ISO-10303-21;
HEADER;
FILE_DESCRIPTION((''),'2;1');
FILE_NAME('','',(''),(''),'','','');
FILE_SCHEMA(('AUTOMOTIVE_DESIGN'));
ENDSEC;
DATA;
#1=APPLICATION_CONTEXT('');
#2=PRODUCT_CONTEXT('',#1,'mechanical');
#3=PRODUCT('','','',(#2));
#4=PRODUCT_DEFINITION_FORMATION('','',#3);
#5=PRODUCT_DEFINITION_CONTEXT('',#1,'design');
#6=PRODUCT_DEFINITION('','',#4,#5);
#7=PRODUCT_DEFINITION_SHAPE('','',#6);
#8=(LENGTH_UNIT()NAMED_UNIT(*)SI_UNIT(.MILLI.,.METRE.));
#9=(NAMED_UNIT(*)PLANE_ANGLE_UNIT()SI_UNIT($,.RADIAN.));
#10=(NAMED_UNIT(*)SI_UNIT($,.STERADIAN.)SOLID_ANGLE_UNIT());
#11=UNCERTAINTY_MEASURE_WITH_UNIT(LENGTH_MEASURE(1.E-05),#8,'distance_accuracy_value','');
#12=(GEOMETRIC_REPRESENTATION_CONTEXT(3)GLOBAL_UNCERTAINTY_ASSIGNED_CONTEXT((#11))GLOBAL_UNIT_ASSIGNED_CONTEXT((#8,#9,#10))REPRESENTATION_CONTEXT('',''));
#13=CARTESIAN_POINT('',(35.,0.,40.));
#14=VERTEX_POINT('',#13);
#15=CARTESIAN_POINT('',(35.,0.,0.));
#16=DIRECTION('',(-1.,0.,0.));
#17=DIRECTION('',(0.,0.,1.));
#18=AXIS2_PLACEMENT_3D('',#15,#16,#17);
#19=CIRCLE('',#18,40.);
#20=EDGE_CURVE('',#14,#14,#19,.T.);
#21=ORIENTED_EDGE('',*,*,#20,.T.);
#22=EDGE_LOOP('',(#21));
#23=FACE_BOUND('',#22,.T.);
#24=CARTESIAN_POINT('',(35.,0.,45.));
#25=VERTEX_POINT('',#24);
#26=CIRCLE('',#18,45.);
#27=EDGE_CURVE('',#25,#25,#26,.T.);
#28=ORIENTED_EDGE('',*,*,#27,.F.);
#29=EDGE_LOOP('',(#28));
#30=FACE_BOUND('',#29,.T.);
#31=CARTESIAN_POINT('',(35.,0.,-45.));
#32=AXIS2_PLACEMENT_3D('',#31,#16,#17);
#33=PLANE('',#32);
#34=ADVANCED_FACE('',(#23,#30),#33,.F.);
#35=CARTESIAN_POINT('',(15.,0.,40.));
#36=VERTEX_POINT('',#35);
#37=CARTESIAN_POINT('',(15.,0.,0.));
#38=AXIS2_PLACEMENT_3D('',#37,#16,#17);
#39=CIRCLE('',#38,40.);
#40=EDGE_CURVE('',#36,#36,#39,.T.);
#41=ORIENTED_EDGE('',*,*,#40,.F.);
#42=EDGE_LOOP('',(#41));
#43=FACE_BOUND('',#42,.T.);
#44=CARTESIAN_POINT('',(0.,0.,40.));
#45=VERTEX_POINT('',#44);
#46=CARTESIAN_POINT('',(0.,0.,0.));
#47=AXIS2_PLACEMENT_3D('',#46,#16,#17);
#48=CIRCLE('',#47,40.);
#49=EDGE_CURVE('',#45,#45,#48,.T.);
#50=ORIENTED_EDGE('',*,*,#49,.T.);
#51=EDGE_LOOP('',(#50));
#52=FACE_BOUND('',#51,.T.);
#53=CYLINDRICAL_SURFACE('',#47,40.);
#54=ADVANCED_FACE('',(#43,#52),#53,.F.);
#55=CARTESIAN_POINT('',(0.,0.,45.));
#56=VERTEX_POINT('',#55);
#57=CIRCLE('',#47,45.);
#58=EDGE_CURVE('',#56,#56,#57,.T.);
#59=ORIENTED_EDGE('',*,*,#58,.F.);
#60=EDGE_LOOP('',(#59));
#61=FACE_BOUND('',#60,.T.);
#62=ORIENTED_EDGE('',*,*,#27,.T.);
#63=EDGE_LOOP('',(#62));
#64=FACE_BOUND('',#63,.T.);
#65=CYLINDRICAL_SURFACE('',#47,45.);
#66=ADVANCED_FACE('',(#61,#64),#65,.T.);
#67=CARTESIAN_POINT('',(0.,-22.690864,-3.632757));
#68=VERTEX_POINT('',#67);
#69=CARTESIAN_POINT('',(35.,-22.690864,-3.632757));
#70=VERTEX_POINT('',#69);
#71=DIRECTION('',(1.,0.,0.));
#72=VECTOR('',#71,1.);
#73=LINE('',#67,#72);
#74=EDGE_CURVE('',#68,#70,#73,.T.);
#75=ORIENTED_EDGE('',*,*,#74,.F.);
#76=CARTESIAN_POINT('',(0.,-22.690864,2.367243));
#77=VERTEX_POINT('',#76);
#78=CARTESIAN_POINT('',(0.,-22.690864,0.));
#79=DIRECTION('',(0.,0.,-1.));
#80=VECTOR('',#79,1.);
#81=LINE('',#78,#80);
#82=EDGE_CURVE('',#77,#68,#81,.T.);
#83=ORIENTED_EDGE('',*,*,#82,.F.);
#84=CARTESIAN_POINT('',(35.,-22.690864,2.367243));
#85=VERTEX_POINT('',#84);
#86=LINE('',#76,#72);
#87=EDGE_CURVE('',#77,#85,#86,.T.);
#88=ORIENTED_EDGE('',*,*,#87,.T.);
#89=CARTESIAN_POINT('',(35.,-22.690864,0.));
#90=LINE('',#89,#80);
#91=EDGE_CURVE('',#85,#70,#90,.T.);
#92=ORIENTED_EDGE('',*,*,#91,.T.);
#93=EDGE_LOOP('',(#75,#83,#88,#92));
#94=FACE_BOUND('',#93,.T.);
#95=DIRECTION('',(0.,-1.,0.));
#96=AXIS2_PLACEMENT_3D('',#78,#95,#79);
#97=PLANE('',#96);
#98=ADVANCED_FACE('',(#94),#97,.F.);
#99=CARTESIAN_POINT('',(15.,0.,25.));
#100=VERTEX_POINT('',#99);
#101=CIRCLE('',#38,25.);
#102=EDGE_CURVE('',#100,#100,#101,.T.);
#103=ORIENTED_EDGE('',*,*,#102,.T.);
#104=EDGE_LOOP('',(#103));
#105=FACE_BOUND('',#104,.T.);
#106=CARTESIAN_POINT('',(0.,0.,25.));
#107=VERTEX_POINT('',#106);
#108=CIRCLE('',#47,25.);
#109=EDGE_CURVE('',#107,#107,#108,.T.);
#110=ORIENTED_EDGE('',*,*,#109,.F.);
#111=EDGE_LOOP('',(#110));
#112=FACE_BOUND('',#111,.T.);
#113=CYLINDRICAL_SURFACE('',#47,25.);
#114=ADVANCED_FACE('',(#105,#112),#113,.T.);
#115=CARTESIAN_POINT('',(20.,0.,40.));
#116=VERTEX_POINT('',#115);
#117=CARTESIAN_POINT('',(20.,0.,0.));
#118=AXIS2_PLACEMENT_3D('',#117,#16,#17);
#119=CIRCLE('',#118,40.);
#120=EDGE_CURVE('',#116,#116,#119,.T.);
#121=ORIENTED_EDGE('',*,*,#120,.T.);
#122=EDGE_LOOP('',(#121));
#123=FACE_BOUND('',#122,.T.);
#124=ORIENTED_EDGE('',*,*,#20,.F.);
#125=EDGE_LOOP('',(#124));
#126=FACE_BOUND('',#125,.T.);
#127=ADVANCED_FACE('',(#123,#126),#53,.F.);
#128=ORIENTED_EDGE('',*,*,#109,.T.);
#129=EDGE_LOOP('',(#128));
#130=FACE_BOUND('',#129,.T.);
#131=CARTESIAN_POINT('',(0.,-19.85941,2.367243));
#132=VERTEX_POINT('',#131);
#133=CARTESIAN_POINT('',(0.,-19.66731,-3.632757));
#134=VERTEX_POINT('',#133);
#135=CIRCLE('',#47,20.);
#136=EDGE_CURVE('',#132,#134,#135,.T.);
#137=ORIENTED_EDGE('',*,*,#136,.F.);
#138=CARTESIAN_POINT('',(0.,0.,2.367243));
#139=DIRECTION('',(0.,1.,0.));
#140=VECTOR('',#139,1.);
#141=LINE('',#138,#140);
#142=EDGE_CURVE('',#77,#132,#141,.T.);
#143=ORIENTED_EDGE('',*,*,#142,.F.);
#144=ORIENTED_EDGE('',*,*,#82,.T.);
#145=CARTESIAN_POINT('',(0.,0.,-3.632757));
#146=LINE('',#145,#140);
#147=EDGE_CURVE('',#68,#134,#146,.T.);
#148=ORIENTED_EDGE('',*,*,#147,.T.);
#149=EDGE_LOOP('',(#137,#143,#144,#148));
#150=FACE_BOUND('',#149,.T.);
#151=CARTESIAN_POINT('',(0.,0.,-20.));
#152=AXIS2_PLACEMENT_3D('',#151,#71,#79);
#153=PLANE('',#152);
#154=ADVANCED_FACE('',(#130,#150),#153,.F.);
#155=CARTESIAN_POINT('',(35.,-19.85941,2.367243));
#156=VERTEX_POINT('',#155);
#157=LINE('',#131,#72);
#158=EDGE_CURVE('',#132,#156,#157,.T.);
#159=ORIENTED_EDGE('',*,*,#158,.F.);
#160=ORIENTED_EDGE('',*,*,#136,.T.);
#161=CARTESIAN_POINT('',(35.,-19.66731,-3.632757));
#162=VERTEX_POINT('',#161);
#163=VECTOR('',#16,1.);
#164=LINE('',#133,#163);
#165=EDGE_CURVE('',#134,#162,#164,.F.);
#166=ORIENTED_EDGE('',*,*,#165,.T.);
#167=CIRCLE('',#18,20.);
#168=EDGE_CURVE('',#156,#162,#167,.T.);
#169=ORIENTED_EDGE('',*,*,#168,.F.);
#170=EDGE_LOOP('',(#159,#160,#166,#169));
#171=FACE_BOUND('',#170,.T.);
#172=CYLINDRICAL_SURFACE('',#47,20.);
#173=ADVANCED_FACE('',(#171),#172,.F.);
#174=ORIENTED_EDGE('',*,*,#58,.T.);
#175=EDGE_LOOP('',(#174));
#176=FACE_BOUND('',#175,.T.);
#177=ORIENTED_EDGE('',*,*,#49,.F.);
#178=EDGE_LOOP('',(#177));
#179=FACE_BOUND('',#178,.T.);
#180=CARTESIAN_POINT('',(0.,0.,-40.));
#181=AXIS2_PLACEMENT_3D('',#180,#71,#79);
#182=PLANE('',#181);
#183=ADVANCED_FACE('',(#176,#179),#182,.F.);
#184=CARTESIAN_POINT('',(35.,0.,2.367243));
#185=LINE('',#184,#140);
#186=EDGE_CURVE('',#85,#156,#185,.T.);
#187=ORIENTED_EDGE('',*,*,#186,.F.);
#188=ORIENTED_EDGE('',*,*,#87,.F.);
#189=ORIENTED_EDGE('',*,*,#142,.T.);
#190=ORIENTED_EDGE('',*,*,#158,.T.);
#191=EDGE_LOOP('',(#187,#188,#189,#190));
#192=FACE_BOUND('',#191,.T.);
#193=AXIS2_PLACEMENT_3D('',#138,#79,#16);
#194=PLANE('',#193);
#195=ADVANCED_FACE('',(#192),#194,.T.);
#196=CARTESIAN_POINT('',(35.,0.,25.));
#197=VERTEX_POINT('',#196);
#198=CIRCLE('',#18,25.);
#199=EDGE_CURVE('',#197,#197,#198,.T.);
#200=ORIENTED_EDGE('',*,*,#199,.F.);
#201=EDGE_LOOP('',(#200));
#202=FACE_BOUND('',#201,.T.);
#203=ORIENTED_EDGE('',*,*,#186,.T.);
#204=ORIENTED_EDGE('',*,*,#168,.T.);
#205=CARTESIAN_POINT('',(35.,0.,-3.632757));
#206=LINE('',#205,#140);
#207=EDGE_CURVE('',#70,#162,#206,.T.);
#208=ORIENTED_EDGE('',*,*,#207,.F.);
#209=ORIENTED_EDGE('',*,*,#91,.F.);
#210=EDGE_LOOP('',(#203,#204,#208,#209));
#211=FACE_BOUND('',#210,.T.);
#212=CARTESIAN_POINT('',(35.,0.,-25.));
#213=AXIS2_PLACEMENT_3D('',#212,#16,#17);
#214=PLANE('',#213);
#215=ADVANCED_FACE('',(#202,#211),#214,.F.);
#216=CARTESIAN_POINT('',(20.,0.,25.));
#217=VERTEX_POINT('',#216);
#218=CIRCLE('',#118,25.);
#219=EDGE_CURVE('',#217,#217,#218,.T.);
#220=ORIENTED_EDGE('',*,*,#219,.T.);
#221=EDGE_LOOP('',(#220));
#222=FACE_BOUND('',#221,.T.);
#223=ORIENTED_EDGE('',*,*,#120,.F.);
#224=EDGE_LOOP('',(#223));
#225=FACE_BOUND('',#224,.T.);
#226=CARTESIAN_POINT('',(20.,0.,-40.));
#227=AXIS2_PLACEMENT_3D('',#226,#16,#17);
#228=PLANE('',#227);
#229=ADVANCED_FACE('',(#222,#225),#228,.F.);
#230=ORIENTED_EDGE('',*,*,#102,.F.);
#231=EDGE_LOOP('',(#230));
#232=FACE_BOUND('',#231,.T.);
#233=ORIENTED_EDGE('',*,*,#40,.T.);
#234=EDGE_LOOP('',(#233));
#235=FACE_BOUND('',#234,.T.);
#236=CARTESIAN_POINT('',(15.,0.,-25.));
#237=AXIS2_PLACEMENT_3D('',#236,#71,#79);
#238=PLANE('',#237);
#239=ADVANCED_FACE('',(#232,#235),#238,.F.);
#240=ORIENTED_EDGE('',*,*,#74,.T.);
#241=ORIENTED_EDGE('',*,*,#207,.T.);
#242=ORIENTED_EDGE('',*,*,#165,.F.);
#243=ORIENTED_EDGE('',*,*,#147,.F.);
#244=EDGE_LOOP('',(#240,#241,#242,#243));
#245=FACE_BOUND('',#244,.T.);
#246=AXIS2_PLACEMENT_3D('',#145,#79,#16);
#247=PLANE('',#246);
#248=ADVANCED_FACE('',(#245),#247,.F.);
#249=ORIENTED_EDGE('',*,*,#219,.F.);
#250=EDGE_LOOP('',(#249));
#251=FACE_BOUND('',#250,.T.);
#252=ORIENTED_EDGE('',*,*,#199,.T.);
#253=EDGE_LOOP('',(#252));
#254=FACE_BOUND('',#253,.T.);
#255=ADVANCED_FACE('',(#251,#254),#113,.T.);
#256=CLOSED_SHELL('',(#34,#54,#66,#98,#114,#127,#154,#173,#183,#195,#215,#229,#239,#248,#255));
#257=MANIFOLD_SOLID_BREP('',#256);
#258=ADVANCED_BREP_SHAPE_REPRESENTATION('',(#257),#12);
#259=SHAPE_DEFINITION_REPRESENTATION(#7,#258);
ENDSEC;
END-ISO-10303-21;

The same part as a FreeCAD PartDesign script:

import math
import FreeCAD as App
import Part
import Sketcher
from FreeCAD import Vector
Q = App.Units.Quantity


def add_polygon(sketch, points):
    """Adds a closed chain of lines whose ends are joined by coincident constraints."""
    first, n = sketch.GeometryCount, len(points)
    for a, b in zip(points, points[1:] + points[:1]):
        sketch.addGeometry(Part.LineSegment(App.Vector(*a, 0), App.Vector(*b, 0)), False)
    for i in range(n):
        sketch.addConstraint(Sketcher.Constraint("Coincident", first + i, 2, first + (i + 1) % n, 1))

doc = App.newDocument("Part")
params = doc.addObject("Spreadsheet::Sheet", "Params")
for row, (alias, value) in enumerate([
    ("sketch1_width", "35 mm"),
    ("sketch1_width2", "15 mm"),
    ("sketch1_height", "5 mm"),
    ("revolution_angle", "360 deg"),
    ("sketch2_radius", "20 mm"),
    ("sketch2_height", "6 mm"),
    ("pocket1_length", "35 mm"),
    ("pocket2_length", "35 mm"),
], start=1):
    params.set(f"A{row}", alias)
    params.set(f"B{row}", "=" + value)
    params.setAlias(f"B{row}", alias)

body = doc.addObject("PartDesign::Body", "Body")

# Sketch on XZ plane
sketch1 = doc.addObject("Sketcher::SketchObject", "Sketch")
body.addObject(sketch1)
sketch1.AttachmentSupport = (doc.XZ_Plane, [""])
sketch1.MapMode = "FlatFace"
add_polygon(sketch1, [(0, -20), (35, -20), (35, -25), (20, -25), (20, -40), (35, -40), (35, -45), (0, -45), (0, -40), (15, -40), (15, -25), (0, -25)])  # lines 0-11
sketch1.addConstraint([
    Sketcher.Constraint("Horizontal", 0),
    Sketcher.Constraint("Vertical", 1),
    Sketcher.Constraint("Horizontal", 2),
    Sketcher.Constraint("Vertical", 3),
    Sketcher.Constraint("Horizontal", 4),
    Sketcher.Constraint("Vertical", 5),
    Sketcher.Constraint("Horizontal", 6),
    Sketcher.Constraint("Vertical", 7),
    Sketcher.Constraint("Horizontal", 8),
    Sketcher.Constraint("Vertical", 9),
    Sketcher.Constraint("Horizontal", 10),
    Sketcher.Constraint("Vertical", 11),
    Sketcher.Constraint("PointOnObject", 6, 2, -2),
    Sketcher.Constraint("PointOnObject", 10, 2, -2),
    Sketcher.Constraint("Horizontal", 4, 2, 7, 2),
    Sketcher.Constraint("Horizontal", 2, 2, 9, 2),
    Sketcher.Constraint("Vertical", 1, 2, 4, 2),
    Sketcher.Constraint("Equal", 4, 8),
    Sketcher.Constraint("Equal", 10, 3),
    Sketcher.Constraint("Equal", 1, 5),
    Sketcher.Constraint("DistanceX", 0, 1, 0, 2, Q("35 mm")),
    Sketcher.Constraint("DistanceX", 2, 2, 2, 1, Q("15 mm")),
    Sketcher.Constraint("DistanceY", 1, 2, 1, 1, Q("5 mm")),
    Sketcher.Constraint("DistanceY", 0, 2, -1, 1, Q("20 mm")),
])
sketch1.setExpression("Constraints[32]", "Params.sketch1_width")
sketch1.setExpression("Constraints[33]", "Params.sketch1_width2")
sketch1.setExpression("Constraints[34]", "Params.sketch1_height")
revolution = doc.addObject("PartDesign::Revolution", "Revolution")
body.addObject(revolution)
revolution.Profile = sketch1
revolution.ReferenceAxis = (sketch1, ["H_Axis"])
revolution.setExpression("Angle", "Params.revolution_angle")

# Sketch on YZ plane
sketch2 = doc.addObject("Sketcher::SketchObject", "Sketch001")
body.addObject(sketch2)
sketch2.AttachmentSupport = (doc.YZ_Plane, [""])
sketch2.MapMode = "FlatFace"
sketch2.addGeometry([
    Part.LineSegment(Vector(-19.9, 2.4, 0), Vector(-22.7, 2.4, 0)),  # 0
    Part.LineSegment(Vector(-22.7, 2.4, 0), Vector(-22.7, -3.6, 0)),  # 1
    Part.LineSegment(Vector(-22.7, -3.6, 0), Vector(-19.9, -3.6, 0)),  # 2
    Part.LineSegment(Vector(-19.9, -3.6, 0), Vector(-19.9, -2.4, 0)),  # 3
    Part.ArcOfCircle(Part.Circle(Vector(0, 0, 0), Vector(0, 0, 1), 20), math.radians(173.2), math.radians(186.8)),  # 4
], False)
sketch2.addConstraint([
    Sketcher.Constraint("Coincident", 0, 2, 1, 1),
    Sketcher.Constraint("Coincident", 1, 2, 2, 1),
    Sketcher.Constraint("Coincident", 2, 2, 3, 1),
    Sketcher.Constraint("Coincident", 3, 2, 4, 2),
    Sketcher.Constraint("Coincident", 4, 1, 0, 1),
    Sketcher.Constraint("Horizontal", 0),
    Sketcher.Constraint("Vertical", 1),
    Sketcher.Constraint("Horizontal", 2),
    Sketcher.Constraint("Vertical", 3),
    Sketcher.Constraint("Coincident", 4, 3, -1, 1),
    Sketcher.Constraint("Vertical", 3, 2, 4, 1),
    Sketcher.Constraint("Radius", 4, Q("20 mm")),
    Sketcher.Constraint("DistanceY", 1, 2, 1, 1, Q("6 mm")),
    Sketcher.Constraint("DistanceX", 0, 2, 0, 1, Q("2.831454 mm")),
    Sketcher.Constraint("DistanceY", 3, 1, 3, 2, Q("1.265515 mm")),
])
sketch2.setExpression("Constraints[11]", "Params.sketch2_radius")
sketch2.setExpression("Constraints[12]", "Params.sketch2_height")
pocket1 = doc.addObject("PartDesign::Pocket", "Pocket")
body.addObject(pocket1)
pocket1.Profile = sketch2
pocket1.setExpression("Length", "Params.pocket1_length")
pocket1.Reversed = True

# Sketch on YZ plane
sketch3 = doc.addObject("Sketcher::SketchObject", "Sketch002")
body.addObject(sketch3)
sketch3.AttachmentSupport = (doc.YZ_Plane, [""])
sketch3.MapMode = "FlatFace"
sketch3.AttachmentOffset = App.Placement(Vector(0, 0, 35), App.Rotation())
add_polygon(sketch3, [(-19.86, -3.63), (-19.59, -3.63), (-19.86, -2.37)])  # lines 0-2
sketch3.addConstraint([
    Sketcher.Constraint("Horizontal", 0),
    Sketcher.Constraint("Vertical", 2),
    Sketcher.Constraint("DistanceX", 0, 1, 0, 2, Q("0.266655 mm")),
    Sketcher.Constraint("DistanceY", 2, 2, 2, 1, Q("1.265515 mm")),
    Sketcher.Constraint("DistanceX", 1, 2, -1, 1, Q("19.85941 mm")),
    Sketcher.Constraint("DistanceY", 0, 2, -1, 1, Q("3.632757 mm")),
])
pocket2 = doc.addObject("PartDesign::Pocket", "Pocket001")
body.addObject(pocket2)
pocket2.Profile = sketch3
pocket2.setExpression("Length", "Params.pocket2_length")

doc.recompute()
